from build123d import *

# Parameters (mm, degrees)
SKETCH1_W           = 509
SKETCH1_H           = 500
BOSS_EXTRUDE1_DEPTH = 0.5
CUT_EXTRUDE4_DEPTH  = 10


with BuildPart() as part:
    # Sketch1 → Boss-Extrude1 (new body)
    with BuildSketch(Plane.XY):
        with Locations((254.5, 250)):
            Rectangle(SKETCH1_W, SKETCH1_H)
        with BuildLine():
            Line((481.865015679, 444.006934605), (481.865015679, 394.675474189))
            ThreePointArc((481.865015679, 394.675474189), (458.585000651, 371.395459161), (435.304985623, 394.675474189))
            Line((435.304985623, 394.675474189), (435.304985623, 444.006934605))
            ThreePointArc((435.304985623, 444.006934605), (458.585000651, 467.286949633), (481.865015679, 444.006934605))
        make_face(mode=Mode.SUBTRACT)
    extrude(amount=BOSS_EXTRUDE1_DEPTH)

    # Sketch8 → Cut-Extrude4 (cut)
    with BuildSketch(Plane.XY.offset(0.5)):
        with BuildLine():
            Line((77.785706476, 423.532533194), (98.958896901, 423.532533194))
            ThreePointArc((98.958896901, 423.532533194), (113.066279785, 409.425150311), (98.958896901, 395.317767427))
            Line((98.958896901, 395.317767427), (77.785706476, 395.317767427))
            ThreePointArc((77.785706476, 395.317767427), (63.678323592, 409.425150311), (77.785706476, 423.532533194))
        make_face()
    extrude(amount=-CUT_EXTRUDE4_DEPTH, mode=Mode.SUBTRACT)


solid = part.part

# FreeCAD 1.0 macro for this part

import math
import FreeCAD as App
import Part
import Sketcher
Q = App.Units.Quantity

doc = App.newDocument("Part")
body = doc.addObject("PartDesign::Body", "Body")

# Sketch on XY plane
sketch1 = body.newObject("Sketcher::SketchObject", "Sketch")
sketch1.AttachmentSupport = (doc.getObject("XY_Plane"), [""])
sketch1.MapMode = "FlatFace"
sketch1.addGeometry(Part.LineSegment(App.Vector(0, 500, 0), App.Vector(0, 0, 0)), False)
sketch1.addGeometry(Part.LineSegment(App.Vector(0, 0, 0), App.Vector(509, 0, 0)), False)
sketch1.addGeometry(Part.LineSegment(App.Vector(509, 0, 0), App.Vector(509, 500, 0)), False)
sketch1.addGeometry(Part.LineSegment(App.Vector(509, 500, 0), App.Vector(0, 500, 0)), False)
sketch1.addGeometry(Part.ArcOfCircle(Part.Circle(App.Vector(458.585001, 444.006935, 0), App.Vector(0, 0, 1), 23.280015), math.radians(0), math.radians(180)), False)
sketch1.addGeometry(Part.LineSegment(App.Vector(481.865016, 444.006935, 0), App.Vector(481.865016, 394.675474, 0)), False)
sketch1.addGeometry(Part.ArcOfCircle(Part.Circle(App.Vector(458.585001, 394.675474, 0), App.Vector(0, 0, 1), 23.280015), math.radians(180), math.radians(360)), False)
sketch1.addGeometry(Part.LineSegment(App.Vector(435.304986, 394.675474, 0), App.Vector(435.304986, 444.006935, 0)), False)
sketch1.addConstraint(Sketcher.Constraint("Coincident", 0, 2, 1, 1))
sketch1.addConstraint(Sketcher.Constraint("Coincident", 1, 2, 2, 1))
sketch1.addConstraint(Sketcher.Constraint("Coincident", 2, 2, 3, 1))
sketch1.addConstraint(Sketcher.Constraint("Coincident", 3, 2, 0, 1))
sketch1.addConstraint(Sketcher.Constraint("Tangent", 4, 1, 5, 1))
sketch1.addConstraint(Sketcher.Constraint("Tangent", 5, 2, 6, 2))
sketch1.addConstraint(Sketcher.Constraint("Tangent", 6, 1, 7, 1))
sketch1.addConstraint(Sketcher.Constraint("Tangent", 7, 2, 4, 2))
sketch1.addConstraint(Sketcher.Constraint("Vertical", 0))
sketch1.addConstraint(Sketcher.Constraint("Horizontal", 1))
sketch1.addConstraint(Sketcher.Constraint("Vertical", 2))
sketch1.addConstraint(Sketcher.Constraint("Horizontal", 3))
sketch1.addConstraint(Sketcher.Constraint("Vertical", 5))
sketch1.addConstraint(Sketcher.Constraint("Vertical", 7))
sketch1.addConstraint(Sketcher.Constraint("Coincident", 0, 2, -1, 1))
sketch1.addConstraint(Sketcher.Constraint("DistanceX", 1, 1, 1, 2, Q("509 mm")))
sketch1.addConstraint(Sketcher.Constraint("DistanceY", 0, 2, 0, 1, Q("500 mm")))
sketch1.addConstraint(Sketcher.Constraint("DistanceX", -1, 1, 4, 3, Q("458.585001 mm")))
sketch1.addConstraint(Sketcher.Constraint("Radius", 4, Q("23.280015 mm")))
sketch1.addConstraint(Sketcher.Constraint("DistanceY", 5, 2, 5, 1, Q("49.33146 mm")))
sketch1.addConstraint(Sketcher.Constraint("DistanceY", -1, 1, 4, 3, Q("444.006935 mm")))
pad1 = body.newObject("PartDesign::Pad", "Pad")
pad1.Profile = sketch1
pad1.Length = 0.5

# Sketch on XY plane
sketch2 = body.newObject("Sketcher::SketchObject", "Sketch001")
sketch2.AttachmentSupport = (doc.getObject("XY_Plane"), [""])
sketch2.MapMode = "FlatFace"
sketch2.AttachmentOffset = App.Placement(App.Vector(0, 0, 0.5), App.Rotation())
sketch2.addGeometry(Part.LineSegment(App.Vector(98.958897, 423.532533, 0), App.Vector(77.785706, 423.532533, 0)), False)
sketch2.addGeometry(Part.ArcOfCircle(Part.Circle(App.Vector(77.785706, 409.42515, 0), App.Vector(0, 0, 1), 14.107383), math.radians(90), math.radians(270)), False)
sketch2.addGeometry(Part.LineSegment(App.Vector(77.785706, 395.317767, 0), App.Vector(98.958897, 395.317767, 0)), False)
sketch2.addGeometry(Part.ArcOfCircle(Part.Circle(App.Vector(98.958897, 409.42515, 0), App.Vector(0, 0, 1), 14.107383), math.radians(-90), math.radians(90)), False)
sketch2.addConstraint(Sketcher.Constraint("Tangent", 0, 2, 1, 1))
sketch2.addConstraint(Sketcher.Constraint("Tangent", 1, 2, 2, 1))
sketch2.addConstraint(Sketcher.Constraint("Tangent", 2, 2, 3, 1))
sketch2.addConstraint(Sketcher.Constraint("Tangent", 3, 2, 0, 1))
sketch2.addConstraint(Sketcher.Constraint("Horizontal", 0))
sketch2.addConstraint(Sketcher.Constraint("Horizontal", 2))
sketch2.addConstraint(Sketcher.Constraint("Radius", 1, Q("14.107383 mm")))
sketch2.addConstraint(Sketcher.Constraint("DistanceX", 0, 2, 0, 1, Q("21.17319 mm")))
sketch2.addConstraint(Sketcher.Constraint("DistanceY", -1, 1, 1, 3, Q("409.42515 mm")))
sketch2.addConstraint(Sketcher.Constraint("DistanceX", -1, 1, 1, 3, Q("77.785706 mm")))
pocket1 = body.newObject("PartDesign::Pocket", "Pocket")
pocket1.Profile = sketch2
pocket1.Length = 10

doc.recompute()
